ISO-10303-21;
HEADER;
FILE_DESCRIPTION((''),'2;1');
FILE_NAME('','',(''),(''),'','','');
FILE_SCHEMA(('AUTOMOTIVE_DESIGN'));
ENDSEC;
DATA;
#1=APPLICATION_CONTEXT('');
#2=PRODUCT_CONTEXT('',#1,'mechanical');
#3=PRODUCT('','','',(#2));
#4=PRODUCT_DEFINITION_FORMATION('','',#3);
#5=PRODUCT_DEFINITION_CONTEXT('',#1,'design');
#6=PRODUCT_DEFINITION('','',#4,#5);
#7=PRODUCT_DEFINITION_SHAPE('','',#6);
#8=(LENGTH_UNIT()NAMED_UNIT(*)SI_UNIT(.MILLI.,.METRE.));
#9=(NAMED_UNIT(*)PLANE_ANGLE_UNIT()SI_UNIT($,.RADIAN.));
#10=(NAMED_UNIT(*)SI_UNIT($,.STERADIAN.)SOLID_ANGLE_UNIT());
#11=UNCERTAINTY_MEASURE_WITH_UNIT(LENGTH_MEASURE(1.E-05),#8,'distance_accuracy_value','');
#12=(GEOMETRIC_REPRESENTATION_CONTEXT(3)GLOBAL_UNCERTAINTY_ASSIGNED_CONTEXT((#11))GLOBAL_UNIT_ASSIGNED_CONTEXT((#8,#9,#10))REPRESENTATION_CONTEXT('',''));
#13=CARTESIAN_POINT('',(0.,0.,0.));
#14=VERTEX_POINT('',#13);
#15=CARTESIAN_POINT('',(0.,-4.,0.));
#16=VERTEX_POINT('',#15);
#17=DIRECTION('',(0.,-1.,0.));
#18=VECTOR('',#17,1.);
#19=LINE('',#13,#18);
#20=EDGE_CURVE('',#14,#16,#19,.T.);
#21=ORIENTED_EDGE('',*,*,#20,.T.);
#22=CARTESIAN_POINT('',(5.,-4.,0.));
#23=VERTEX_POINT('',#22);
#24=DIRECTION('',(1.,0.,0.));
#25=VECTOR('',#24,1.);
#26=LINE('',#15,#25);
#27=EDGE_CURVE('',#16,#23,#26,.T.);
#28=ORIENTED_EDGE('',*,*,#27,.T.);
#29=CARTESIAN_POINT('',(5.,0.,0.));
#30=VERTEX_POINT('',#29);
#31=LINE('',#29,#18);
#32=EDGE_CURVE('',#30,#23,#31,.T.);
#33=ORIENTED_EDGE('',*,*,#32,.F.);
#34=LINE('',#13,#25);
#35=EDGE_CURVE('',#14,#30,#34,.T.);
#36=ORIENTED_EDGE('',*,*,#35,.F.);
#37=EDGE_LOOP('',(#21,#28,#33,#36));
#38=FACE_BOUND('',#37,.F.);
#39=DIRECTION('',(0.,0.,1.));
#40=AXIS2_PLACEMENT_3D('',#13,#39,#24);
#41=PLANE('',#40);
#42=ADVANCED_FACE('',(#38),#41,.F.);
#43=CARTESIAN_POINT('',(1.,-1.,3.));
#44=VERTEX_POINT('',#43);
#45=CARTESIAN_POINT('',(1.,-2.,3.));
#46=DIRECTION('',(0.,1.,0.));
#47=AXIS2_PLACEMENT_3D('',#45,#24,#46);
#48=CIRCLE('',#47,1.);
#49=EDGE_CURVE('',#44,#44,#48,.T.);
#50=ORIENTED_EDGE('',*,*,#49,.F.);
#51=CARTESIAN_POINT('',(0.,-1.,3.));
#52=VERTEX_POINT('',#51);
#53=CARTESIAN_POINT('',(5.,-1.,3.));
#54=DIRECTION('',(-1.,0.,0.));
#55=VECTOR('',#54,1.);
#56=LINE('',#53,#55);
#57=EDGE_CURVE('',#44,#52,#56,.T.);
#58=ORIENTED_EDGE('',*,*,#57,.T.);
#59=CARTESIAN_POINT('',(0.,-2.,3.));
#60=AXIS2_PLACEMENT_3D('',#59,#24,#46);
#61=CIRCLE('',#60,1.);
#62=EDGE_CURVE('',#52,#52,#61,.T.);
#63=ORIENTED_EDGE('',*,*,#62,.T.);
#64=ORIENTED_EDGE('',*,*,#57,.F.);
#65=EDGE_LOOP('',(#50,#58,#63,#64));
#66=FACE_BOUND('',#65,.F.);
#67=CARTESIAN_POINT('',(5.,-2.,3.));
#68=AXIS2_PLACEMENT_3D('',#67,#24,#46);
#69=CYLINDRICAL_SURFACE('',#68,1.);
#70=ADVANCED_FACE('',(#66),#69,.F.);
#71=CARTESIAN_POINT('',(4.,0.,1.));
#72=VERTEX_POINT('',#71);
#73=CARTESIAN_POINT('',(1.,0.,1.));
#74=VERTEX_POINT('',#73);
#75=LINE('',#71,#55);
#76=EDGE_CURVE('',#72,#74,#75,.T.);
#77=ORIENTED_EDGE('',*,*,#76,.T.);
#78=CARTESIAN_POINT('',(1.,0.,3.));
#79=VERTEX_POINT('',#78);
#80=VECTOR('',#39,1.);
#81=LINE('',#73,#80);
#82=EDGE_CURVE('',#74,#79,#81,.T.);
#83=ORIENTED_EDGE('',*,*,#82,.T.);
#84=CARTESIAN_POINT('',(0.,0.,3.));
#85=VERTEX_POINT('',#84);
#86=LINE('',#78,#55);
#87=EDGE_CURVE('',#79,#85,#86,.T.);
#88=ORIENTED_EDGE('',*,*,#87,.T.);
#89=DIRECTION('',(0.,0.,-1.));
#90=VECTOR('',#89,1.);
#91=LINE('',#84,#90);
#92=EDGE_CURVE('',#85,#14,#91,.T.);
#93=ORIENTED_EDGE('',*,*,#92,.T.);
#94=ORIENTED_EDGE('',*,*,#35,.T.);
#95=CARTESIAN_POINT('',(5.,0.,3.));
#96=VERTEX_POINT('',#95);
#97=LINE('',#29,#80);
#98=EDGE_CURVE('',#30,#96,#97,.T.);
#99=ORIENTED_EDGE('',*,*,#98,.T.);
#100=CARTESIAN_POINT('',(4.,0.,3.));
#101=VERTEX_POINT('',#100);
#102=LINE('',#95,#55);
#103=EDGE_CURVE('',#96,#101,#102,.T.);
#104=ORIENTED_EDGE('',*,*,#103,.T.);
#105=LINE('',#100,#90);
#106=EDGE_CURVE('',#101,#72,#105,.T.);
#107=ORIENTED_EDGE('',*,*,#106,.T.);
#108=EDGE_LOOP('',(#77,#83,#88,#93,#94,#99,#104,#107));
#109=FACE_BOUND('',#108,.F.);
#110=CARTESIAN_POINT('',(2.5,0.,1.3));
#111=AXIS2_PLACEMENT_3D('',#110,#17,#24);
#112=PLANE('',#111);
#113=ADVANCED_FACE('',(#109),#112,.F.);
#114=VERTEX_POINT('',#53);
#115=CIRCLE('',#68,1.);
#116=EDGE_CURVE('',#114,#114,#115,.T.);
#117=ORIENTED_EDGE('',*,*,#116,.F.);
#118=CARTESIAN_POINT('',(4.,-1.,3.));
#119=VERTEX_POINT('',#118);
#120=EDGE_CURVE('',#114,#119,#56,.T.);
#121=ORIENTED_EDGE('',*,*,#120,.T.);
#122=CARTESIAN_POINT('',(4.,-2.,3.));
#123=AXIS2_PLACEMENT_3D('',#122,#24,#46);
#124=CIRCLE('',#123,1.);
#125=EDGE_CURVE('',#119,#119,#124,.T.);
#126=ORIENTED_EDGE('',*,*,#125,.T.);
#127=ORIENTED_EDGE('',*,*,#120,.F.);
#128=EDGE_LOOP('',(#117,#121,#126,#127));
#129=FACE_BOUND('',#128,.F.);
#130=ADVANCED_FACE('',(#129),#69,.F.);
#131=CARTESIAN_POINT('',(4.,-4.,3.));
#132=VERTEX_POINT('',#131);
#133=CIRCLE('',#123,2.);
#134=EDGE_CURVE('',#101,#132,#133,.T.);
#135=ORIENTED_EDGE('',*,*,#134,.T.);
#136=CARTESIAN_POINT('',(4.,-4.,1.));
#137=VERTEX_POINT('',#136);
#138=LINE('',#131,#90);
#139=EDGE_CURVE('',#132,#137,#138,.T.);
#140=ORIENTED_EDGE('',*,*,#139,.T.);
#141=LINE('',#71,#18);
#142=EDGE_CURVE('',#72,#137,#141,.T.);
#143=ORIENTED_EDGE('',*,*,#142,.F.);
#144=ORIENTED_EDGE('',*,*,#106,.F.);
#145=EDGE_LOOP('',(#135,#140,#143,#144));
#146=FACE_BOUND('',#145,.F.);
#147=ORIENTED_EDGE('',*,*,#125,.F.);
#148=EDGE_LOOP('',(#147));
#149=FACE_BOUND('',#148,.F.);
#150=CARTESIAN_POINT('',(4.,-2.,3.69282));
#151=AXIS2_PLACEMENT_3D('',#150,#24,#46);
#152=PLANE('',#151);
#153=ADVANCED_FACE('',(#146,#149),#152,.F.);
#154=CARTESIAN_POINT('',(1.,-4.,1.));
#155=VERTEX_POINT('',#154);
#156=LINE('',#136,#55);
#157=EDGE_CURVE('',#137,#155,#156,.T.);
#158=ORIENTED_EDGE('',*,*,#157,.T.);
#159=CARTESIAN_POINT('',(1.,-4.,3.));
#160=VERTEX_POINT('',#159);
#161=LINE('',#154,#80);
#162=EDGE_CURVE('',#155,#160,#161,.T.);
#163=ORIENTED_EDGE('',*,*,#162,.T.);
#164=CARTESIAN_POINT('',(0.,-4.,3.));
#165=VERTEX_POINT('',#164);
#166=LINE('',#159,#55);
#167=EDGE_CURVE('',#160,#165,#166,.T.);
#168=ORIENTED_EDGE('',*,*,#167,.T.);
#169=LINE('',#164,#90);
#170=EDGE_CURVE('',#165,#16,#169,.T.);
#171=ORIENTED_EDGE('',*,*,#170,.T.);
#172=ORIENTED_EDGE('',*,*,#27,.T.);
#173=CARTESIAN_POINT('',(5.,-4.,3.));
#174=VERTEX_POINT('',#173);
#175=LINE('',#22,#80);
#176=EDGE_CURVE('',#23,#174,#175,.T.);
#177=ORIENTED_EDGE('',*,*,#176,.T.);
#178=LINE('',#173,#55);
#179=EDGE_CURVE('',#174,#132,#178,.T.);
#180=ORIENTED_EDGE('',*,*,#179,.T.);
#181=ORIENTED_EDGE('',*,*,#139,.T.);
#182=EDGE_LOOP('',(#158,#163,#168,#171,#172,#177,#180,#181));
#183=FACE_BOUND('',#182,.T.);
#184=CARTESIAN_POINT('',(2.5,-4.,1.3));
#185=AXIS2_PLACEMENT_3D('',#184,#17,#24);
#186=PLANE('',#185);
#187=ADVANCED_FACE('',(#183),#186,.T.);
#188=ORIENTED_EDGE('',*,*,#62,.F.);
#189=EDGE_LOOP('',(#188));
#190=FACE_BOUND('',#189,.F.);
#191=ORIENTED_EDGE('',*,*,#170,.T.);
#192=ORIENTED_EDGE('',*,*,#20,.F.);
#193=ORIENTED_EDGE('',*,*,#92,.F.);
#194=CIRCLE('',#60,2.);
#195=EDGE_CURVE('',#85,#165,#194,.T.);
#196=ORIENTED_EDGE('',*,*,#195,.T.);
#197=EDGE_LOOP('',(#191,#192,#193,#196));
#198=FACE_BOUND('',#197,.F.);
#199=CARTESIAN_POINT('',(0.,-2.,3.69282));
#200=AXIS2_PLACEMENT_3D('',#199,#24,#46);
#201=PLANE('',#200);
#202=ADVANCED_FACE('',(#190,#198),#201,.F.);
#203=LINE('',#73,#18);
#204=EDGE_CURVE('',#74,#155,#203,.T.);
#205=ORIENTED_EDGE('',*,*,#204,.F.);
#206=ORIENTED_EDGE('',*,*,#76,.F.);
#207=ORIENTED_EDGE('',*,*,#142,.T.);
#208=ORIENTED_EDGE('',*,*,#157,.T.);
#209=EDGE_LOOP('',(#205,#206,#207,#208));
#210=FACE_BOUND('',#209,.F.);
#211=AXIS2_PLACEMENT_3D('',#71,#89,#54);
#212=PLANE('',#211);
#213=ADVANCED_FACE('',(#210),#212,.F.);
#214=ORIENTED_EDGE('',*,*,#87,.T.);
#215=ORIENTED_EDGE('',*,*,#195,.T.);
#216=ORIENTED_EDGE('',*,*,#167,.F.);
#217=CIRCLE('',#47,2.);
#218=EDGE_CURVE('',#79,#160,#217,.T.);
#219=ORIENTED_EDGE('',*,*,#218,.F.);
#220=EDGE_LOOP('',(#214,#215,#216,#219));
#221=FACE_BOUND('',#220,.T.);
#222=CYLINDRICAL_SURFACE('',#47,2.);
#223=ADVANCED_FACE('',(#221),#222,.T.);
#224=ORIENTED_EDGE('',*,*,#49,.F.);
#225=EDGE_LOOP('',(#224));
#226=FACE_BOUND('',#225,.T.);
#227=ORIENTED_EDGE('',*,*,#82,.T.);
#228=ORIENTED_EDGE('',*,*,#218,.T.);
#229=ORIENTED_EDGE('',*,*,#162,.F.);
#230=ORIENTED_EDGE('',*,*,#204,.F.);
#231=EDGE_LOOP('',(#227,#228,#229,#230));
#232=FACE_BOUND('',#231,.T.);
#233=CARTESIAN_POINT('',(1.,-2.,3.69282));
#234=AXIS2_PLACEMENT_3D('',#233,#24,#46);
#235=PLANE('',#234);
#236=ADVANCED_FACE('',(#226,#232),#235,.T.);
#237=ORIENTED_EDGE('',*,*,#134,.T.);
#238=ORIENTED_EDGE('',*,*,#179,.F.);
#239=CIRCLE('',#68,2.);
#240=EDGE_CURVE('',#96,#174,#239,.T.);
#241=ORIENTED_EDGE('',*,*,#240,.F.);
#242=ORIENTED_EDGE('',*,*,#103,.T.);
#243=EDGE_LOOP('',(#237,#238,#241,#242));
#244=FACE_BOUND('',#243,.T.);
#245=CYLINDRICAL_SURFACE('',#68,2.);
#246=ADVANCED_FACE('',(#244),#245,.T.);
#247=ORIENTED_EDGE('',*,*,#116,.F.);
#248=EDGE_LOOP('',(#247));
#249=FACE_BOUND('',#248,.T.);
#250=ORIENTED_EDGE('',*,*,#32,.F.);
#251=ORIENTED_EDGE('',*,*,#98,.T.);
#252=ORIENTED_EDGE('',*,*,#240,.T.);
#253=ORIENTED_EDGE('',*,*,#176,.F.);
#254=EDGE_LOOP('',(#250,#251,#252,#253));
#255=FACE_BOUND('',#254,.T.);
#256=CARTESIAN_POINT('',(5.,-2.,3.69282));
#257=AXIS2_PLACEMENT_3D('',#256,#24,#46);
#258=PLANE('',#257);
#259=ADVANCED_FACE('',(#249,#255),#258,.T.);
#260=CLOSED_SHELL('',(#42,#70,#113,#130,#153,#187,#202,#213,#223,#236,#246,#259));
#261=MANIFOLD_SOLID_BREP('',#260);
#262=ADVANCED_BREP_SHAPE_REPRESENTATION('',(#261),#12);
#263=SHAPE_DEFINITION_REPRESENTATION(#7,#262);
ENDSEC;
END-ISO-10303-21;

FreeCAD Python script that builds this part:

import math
import FreeCAD as App
import Part
import Sketcher
from FreeCAD import Vector


def add_polygon(sketch, points):
    """Adds a closed chain of lines whose ends are joined by coincident constraints."""
    first, n = sketch.GeometryCount, len(points)
    for a, b in zip(points, points[1:] + points[:1]):
        sketch.addGeometry(Part.LineSegment(App.Vector(*a, 0), App.Vector(*b, 0)), False)
    for i in range(n):
        sketch.addConstraint(Sketcher.Constraint("Coincident", first + i, 2, first + (i + 1) % n, 1))

doc = App.newDocument("Part")
body = doc.addObject("PartDesign::Body", "Body")

sketch1 = body.newObject("Sketcher::SketchObject", "Sketch")
sketch1.AttachmentSupport = (doc.getObject("XZ_Plane"), [""])
sketch1.MapMode = "FlatFace"
add_polygon(sketch1, [(0, 3), (0, 0), (5, 0), (5, 3), (4, 3), (4, 1), (1, 1), (1, 3)])
sketch1.addConstraint([
    Sketcher.Constraint("Vertical", 0),
    Sketcher.Constraint("Horizontal", 1),
    Sketcher.Constraint("Vertical", 2),
    Sketcher.Constraint("Horizontal", 3),
    Sketcher.Constraint("Vertical", 4),
    Sketcher.Constraint("Horizontal", 5),
    Sketcher.Constraint("Vertical", 6),
    Sketcher.Constraint("Horizontal", 7),
    Sketcher.Constraint("Coincident", 0, 2, -1, 1),
    Sketcher.Constraint("Horizontal", 3, 2, 6, 2),
    Sketcher.Constraint("Equal", 3, 7),
    Sketcher.Constraint("Equal", 5, 0),
    Sketcher.Constraint("DistanceX", 1, 1, 1, 2, 5.0),
    Sketcher.Constraint("DistanceX", 3, 2, 3, 1, 1.0),
    Sketcher.Constraint("DistanceY", 4, 2, 4, 1, 2.0),
])
pad1 = body.newObject("PartDesign::Pad", "Pad")
pad1.Profile = sketch1
pad1.Length = 4

sketch2 = body.newObject("Sketcher::SketchObject", "Sketch001")
sketch2.AttachmentSupport = (doc.getObject("YZ_Plane"), [""])
sketch2.MapMode = "FlatFace"
sketch2.AttachmentOffset = App.Placement(Vector(0, 0, 1), App.Rotation())
sketch2.addGeometry([
    Part.LineSegment(Vector(-4, 3, 0), Vector(0, 3, 0)),
    Part.ArcOfCircle(Part.Circle(Vector(-2, 3, 0), Vector(0, 0, 1), 2), math.radians(0), math.radians(180)),
], False)
sketch2.addConstraint([
    Sketcher.Constraint("Coincident", 0, 1, 1, 2),
    Sketcher.Constraint("Coincident", 1, 1, 0, 2),
    Sketcher.Constraint("Horizontal", 0),
    Sketcher.Constraint("PointOnObject", 1, 1, -2),
    Sketcher.Constraint("Horizontal", 1, 3, 0, 1),
    Sketcher.Constraint("Radius", 1, 2.0),
    Sketcher.Constraint("DistanceY", -1, 1, 1, 3, 3.0),
])
pad2 = body.newObject("PartDesign::Pad", "Pad001")
pad2.Profile = sketch2
pad2.Length = 1
pad2.Reversed = True

sketch3 = body.newObject("Sketcher::SketchObject", "Sketch002")
sketch3.AttachmentSupport = (doc.getObject("YZ_Plane"), [""])
sketch3.MapMode = "FlatFace"
sketch3.AttachmentOffset = App.Placement(Vector(0, 0, 5), App.Rotation())
sketch3.addGeometry([
    Part.LineSegment(Vector(-4, 3, 0), Vector(0, 3, 0)),
    Part.ArcOfCircle(Part.Circle(Vector(-2, 3, 0), Vector(0, 0, 1), 2), math.radians(0), math.radians(180)),
], False)
sketch3.addConstraint([
    Sketcher.Constraint("Coincident", 0, 1, 1, 2),
    Sketcher.Constraint("Coincident", 1, 1, 0, 2),
    Sketcher.Constraint("Horizontal", 0),
    Sketcher.Constraint("PointOnObject", 1, 1, -2),
    Sketcher.Constraint("Horizontal", 1, 3, 0, 1),
    Sketcher.Constraint("Radius", 1, 2.0),
    Sketcher.Constraint("DistanceY", -1, 1, 1, 3, 3.0),
])
pad3 = body.newObject("PartDesign::Pad", "Pad002")
pad3.Profile = sketch3
pad3.Length = 1
pad3.Reversed = True

sketch4 = body.newObject("Sketcher::SketchObject", "Sketch003")
sketch4.AttachmentSupport = (doc.getObject("YZ_Plane"), [""])
sketch4.MapMode = "FlatFace"
sketch4.AttachmentOffset = App.Placement(Vector(0, 0, 5), App.Rotation())
sketch4.addGeometry(Part.Circle(Vector(-2, 3, 0), Vector(0, 0, 1), 1), False)
sketch4.addConstraint([
    Sketcher.Constraint("Diameter", 0, 2.0),
    Sketcher.Constraint("DistanceX", 0, 3, -1, 1, 2.0),
    Sketcher.Constraint("DistanceY", -1, 1, 0, 3, 3.0),
])
pocket1 = body.newObject("PartDesign::Pocket", "Pocket")
pocket1.Profile = sketch4
pocket1.Length = 6

doc.recompute()
